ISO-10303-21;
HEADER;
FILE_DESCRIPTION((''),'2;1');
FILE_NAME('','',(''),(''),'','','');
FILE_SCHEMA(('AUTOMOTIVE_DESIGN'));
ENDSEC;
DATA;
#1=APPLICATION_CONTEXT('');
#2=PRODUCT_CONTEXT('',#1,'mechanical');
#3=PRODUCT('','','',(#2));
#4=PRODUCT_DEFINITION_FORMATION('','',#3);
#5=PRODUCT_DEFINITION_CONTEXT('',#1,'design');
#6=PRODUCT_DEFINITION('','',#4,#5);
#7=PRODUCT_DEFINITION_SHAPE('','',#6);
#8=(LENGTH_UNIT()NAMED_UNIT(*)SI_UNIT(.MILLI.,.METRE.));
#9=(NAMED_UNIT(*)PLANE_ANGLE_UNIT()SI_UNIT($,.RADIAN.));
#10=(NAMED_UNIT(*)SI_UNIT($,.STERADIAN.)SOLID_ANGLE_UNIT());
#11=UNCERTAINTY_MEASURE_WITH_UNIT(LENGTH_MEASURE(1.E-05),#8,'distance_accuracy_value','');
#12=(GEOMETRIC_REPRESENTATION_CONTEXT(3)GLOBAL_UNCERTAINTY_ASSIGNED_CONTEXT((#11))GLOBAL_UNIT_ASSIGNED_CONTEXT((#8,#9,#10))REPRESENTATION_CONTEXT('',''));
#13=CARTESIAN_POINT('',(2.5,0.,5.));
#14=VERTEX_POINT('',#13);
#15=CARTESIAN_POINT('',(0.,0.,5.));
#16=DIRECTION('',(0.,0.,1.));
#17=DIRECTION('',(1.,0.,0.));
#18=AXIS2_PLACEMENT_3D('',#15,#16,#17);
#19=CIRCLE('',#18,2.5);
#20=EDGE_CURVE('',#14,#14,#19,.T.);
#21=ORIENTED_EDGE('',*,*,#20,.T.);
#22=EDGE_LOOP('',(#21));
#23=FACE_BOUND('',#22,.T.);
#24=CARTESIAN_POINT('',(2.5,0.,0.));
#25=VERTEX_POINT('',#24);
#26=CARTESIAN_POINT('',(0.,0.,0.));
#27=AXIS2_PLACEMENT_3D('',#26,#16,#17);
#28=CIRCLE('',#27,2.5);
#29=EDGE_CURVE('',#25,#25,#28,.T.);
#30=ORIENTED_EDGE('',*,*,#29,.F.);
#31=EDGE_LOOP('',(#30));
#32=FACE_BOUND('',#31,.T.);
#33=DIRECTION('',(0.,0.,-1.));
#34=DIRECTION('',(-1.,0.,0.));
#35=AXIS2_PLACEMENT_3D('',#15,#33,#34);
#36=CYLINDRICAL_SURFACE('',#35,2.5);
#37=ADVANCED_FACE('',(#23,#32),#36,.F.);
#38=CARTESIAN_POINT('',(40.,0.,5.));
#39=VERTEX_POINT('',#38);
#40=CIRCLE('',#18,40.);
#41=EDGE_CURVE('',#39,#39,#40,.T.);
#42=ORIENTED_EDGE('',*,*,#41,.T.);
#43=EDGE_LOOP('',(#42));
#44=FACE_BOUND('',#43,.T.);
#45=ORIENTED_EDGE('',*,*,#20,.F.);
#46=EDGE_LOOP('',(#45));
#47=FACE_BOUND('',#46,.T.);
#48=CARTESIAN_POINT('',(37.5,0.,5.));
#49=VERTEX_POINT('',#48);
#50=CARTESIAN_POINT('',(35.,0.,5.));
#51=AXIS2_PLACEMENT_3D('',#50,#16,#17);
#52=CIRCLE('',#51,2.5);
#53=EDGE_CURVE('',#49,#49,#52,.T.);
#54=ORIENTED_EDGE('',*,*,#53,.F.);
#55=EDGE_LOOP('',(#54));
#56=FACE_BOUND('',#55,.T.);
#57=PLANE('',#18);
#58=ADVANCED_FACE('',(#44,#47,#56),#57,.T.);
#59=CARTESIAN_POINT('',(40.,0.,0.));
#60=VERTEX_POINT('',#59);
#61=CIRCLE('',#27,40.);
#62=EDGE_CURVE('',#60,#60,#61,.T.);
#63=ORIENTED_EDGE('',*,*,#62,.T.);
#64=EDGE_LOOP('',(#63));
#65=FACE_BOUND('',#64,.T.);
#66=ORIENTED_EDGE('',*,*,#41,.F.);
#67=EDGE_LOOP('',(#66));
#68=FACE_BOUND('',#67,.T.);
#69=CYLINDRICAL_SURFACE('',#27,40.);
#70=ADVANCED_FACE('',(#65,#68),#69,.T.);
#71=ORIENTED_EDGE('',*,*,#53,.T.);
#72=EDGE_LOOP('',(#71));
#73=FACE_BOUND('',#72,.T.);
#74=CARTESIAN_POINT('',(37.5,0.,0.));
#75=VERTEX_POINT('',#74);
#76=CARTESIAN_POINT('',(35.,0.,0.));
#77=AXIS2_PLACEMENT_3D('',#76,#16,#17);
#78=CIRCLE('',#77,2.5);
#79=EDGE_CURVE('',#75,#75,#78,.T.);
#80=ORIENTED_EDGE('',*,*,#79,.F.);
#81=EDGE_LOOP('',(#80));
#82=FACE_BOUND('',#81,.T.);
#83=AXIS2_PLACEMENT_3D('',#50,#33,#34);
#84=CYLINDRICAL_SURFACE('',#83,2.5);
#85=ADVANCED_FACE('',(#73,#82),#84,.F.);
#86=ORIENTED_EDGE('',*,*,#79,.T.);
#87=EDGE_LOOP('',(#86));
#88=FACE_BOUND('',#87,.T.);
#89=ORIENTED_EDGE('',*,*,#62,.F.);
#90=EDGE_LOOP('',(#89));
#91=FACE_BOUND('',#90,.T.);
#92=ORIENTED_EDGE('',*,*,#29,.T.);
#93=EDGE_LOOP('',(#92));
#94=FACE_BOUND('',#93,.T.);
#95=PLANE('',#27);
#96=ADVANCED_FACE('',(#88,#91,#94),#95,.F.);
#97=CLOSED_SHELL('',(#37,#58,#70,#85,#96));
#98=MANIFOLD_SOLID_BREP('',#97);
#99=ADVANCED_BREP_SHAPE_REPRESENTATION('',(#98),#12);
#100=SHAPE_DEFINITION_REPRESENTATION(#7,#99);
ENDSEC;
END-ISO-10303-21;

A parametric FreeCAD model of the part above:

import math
import FreeCAD as App
import Part
import Sketcher
Q = App.Units.Quantity

doc = App.newDocument("Part")
params = doc.addObject("Spreadsheet::Sheet", "Params")
for row, (alias, value) in enumerate([
    ("sketch1_diameter", "5 mm"),
    ("sketch1_radius", "5 mm"),
    ("sketch1_width", "35 mm"),
    ("pad1_length", "5 mm"),
    ("sketch2_diameter", "80 mm"),
    ("sketch2_diameter2", "5 mm"),
    ("pad2_length", "5 mm"),
], start=1):
    params.set(f"A{row}", alias)
    params.set(f"B{row}", "=" + value)
    params.setAlias(f"B{row}", alias)

body = doc.addObject("PartDesign::Body", "Body")

sketch1 = doc.addObject("Sketcher::SketchObject", "Sketch")
body.addObject(sketch1)
sketch1.AttachmentSupport = (doc.XY_Plane, [""])
sketch1.MapMode = "FlatFace"
sketch1.addGeometry([
    Part.LineSegment(App.Vector(0, -5, 0), App.Vector(35, -5, 0)),
    Part.ArcOfCircle(Part.Circle(App.Vector(35, 0, 0), App.Vector(0, 0, 1), 5), math.radians(-90), math.radians(90)),
    Part.LineSegment(App.Vector(35, 5, 0), App.Vector(0, 5, 0)),
    Part.ArcOfCircle(Part.Circle(App.Vector(0, 0, 0), App.Vector(0, 0, 1), 5), math.radians(90), math.radians(270)),
    Part.Circle(App.Vector(0, 0, 0), App.Vector(0, 0, 1), 2.5),
    Part.Circle(App.Vector(35, 0, 0), App.Vector(0, 0, 1), 2.5),
], False)
sketch1.addConstraint([
    Sketcher.Constraint("Tangent", 0, 2, 1, 1),
    Sketcher.Constraint("Tangent", 1, 2, 2, 1),
    Sketcher.Constraint("Tangent", 2, 2, 3, 1),
    Sketcher.Constraint("Tangent", 3, 2, 0, 1),
    Sketcher.Constraint("Horizontal", 0),
    Sketcher.Constraint("Horizontal", 2),
    Sketcher.Constraint("Coincident", 3, 3, -1, 1),
    Sketcher.Constraint("Coincident", 4, 3, -1, 1),
    Sketcher.Constraint("Coincident", 5, 3, 1, 3),
    Sketcher.Constraint("Equal", 4, 5),
    Sketcher.Constraint("Diameter", 4, Q("5 mm")),
    Sketcher.Constraint("Radius", 1, Q("5 mm")),
    Sketcher.Constraint("DistanceX", 0, 1, 0, 2, Q("35 mm")),
])
sketch1.setExpression("Constraints[10]", "Params.sketch1_diameter")
sketch1.setExpression("Constraints[11]", "Params.sketch1_radius")
sketch1.setExpression("Constraints[12]", "Params.sketch1_width")
pad1 = doc.addObject("PartDesign::Pad", "Pad")
body.addObject(pad1)
pad1.Profile = sketch1
pad1.setExpression("Length", "Params.pad1_length")

sketch2 = doc.addObject("Sketcher::SketchObject", "Sketch001")
body.addObject(sketch2)
sketch2.AttachmentSupport = (doc.XY_Plane, [""])
sketch2.MapMode = "FlatFace"
sketch2.addGeometry([
    Part.Circle(App.Vector(0, 0, 0), App.Vector(0, 0, 1), 40),
    Part.Circle(App.Vector(0, 0, 0), App.Vector(0, 0, 1), 2.5),
    Part.Circle(App.Vector(35, 0, 0), App.Vector(0, 0, 1), 2.5),
], False)
sketch2.addConstraint([
    Sketcher.Constraint("Coincident", 0, 3, -1, 1),
    Sketcher.Constraint("Coincident", 1, 3, -1, 1),
    Sketcher.Constraint("Equal", 1, 2),
    Sketcher.Constraint("PointOnObject", 2, 3, -1),
    Sketcher.Constraint("Diameter", 0, Q("80 mm")),
    Sketcher.Constraint("Diameter", 1, Q("5 mm")),
    Sketcher.Constraint("DistanceX", -1, 1, 2, 3, Q("35 mm")),
])
sketch2.setExpression("Constraints[4]", "Params.sketch2_diameter")
sketch2.setExpression("Constraints[5]", "Params.sketch2_diameter2")
pad2 = doc.addObject("PartDesign::Pad", "Pad001")
body.addObject(pad2)
pad2.Profile = sketch2
pad2.setExpression("Length", "Params.pad2_length")

doc.recompute()
